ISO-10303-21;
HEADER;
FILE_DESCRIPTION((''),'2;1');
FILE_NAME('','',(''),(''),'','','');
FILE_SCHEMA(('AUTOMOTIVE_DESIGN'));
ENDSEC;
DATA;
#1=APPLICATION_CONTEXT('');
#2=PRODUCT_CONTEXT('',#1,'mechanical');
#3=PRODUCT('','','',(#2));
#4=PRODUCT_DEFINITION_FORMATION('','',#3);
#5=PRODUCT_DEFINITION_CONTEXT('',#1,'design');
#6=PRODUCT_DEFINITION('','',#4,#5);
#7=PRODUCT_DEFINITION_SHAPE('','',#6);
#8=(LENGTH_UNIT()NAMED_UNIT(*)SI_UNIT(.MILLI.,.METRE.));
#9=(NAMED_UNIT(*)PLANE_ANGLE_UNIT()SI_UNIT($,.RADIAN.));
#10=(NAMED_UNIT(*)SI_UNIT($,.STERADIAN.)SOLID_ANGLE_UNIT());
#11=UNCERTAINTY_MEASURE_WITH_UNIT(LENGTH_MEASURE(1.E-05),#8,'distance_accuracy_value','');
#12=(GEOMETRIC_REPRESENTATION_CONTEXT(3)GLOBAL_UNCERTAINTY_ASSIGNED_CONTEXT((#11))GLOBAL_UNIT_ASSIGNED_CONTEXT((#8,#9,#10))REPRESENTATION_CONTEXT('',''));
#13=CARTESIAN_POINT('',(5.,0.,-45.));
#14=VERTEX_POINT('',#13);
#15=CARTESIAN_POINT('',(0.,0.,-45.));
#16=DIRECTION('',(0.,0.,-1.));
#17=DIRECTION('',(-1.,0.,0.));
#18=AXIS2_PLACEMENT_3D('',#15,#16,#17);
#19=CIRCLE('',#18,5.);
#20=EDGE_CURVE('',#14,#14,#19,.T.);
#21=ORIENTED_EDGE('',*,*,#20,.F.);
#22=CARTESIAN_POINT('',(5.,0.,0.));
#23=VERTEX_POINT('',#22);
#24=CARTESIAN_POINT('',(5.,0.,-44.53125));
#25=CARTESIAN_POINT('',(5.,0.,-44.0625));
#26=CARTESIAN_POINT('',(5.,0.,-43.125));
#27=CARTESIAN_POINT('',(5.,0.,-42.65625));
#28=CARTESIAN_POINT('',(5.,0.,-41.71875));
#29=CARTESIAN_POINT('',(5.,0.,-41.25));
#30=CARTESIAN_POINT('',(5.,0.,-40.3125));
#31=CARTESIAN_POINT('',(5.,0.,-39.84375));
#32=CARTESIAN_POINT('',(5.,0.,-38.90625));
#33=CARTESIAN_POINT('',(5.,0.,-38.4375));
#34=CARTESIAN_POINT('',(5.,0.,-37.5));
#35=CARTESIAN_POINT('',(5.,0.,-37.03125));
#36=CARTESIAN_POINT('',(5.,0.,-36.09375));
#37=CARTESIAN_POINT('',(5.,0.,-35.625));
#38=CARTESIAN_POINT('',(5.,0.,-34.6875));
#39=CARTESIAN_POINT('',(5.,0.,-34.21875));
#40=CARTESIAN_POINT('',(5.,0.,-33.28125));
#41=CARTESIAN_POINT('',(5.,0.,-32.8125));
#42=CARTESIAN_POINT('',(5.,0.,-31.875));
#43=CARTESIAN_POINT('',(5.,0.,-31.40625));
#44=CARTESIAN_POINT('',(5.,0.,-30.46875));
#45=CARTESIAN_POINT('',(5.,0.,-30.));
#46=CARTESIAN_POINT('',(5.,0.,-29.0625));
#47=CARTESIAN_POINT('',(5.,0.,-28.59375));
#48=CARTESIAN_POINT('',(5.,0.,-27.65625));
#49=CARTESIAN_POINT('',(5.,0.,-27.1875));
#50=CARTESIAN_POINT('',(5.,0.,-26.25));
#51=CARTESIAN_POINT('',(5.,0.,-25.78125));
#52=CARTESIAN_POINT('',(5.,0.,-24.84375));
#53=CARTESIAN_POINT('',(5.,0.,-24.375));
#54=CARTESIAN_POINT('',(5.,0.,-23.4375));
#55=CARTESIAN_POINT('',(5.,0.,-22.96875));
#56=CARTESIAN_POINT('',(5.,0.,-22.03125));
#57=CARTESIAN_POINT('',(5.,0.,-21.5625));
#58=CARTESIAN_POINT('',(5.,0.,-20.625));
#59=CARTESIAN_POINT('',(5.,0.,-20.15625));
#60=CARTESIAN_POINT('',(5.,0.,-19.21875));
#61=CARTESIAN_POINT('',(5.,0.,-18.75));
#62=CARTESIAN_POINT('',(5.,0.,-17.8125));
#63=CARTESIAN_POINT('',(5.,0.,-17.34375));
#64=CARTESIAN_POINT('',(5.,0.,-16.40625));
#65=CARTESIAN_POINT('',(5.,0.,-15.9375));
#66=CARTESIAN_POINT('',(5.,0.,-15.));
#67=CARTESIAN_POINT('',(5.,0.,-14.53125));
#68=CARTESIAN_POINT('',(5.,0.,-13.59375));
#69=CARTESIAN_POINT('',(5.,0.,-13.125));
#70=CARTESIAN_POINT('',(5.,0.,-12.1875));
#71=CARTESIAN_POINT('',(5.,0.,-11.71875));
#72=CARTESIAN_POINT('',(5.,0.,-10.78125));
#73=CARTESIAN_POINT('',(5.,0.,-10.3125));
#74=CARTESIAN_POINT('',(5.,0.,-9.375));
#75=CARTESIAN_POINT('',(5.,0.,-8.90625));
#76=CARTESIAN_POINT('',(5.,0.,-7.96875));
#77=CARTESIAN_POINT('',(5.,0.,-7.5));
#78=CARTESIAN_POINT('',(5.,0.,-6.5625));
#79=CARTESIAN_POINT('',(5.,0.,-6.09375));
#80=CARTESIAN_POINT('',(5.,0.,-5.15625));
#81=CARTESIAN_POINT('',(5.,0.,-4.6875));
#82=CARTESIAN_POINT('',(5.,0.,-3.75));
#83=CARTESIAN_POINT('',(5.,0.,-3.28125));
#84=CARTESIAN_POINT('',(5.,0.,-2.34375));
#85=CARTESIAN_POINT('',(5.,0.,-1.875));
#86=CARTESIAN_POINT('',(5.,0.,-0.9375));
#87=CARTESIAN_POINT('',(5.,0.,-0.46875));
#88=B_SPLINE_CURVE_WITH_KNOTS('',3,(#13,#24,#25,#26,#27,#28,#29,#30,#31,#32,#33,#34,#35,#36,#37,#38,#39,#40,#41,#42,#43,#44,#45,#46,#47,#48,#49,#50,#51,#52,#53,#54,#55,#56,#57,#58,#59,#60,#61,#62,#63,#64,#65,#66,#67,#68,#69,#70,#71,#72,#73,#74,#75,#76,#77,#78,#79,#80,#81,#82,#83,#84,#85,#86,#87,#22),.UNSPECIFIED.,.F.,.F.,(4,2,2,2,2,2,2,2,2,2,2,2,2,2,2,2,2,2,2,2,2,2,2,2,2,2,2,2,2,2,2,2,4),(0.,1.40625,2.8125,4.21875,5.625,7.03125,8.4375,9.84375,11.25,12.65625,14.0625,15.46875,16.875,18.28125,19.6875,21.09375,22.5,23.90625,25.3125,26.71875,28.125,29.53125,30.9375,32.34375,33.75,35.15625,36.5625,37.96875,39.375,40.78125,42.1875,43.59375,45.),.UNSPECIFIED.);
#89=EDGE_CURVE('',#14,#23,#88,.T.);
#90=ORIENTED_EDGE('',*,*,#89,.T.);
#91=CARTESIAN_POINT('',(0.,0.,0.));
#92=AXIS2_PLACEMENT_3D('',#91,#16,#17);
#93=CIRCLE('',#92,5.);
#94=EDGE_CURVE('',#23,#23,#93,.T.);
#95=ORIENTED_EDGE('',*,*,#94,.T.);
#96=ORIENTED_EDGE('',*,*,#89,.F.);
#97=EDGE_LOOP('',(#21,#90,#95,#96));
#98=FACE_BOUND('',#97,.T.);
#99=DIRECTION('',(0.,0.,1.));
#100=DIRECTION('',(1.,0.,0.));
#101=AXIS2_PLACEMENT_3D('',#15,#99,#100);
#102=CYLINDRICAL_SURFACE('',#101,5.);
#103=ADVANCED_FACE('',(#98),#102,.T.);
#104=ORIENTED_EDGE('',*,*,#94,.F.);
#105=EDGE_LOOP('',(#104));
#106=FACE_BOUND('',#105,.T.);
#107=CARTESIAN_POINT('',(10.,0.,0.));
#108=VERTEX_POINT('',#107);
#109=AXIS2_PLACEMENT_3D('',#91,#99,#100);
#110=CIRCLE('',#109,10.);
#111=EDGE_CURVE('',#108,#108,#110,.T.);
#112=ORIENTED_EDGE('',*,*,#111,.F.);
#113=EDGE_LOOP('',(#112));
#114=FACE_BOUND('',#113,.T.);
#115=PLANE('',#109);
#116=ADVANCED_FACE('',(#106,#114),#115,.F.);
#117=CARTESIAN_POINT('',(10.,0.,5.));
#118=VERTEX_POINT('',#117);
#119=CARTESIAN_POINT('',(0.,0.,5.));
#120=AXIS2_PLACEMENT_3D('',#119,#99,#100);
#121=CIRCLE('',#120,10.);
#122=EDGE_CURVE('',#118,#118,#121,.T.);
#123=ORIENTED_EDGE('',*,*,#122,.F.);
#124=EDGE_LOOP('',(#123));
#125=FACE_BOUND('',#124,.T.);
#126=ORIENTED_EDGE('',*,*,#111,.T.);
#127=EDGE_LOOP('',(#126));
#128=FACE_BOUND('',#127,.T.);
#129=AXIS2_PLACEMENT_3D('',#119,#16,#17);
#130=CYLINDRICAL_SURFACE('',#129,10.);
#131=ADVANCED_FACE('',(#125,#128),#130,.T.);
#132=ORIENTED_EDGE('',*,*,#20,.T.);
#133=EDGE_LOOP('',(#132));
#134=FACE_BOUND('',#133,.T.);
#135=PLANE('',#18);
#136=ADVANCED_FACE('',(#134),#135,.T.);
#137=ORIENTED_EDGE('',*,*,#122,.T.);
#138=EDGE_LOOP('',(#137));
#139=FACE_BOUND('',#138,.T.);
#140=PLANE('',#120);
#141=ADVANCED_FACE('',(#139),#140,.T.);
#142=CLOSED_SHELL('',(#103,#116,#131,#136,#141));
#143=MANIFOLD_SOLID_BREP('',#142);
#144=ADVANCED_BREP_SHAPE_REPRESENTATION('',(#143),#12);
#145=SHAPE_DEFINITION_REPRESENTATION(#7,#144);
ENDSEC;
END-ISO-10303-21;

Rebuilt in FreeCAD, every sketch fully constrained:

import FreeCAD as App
import Part
import Sketcher

V = App.Vector
Q = App.Units.Quantity

doc = App.newDocument("Part")
params = doc.addObject("Spreadsheet::Sheet", "Params")
for row, (alias, value) in enumerate([
    ("sketch1_diameter", "20 mm"),
    ("pad1_length", "5 mm"),
    ("sketch2_diameter", "10 mm"),
    ("pad2_length", "45 mm"),
], start=1):
    params.set(f"A{row}", alias)
    params.set(f"B{row}", "=" + value)
    params.setAlias(f"B{row}", alias)

body = doc.addObject("PartDesign::Body", "Body")

sketch1 = doc.addObject("Sketcher::SketchObject", "Sketch")
body.addObject(sketch1)
sketch1.AttachmentSupport = (doc.XY_Plane, [""])
sketch1.MapMode = "FlatFace"
sketch1.addGeometry(Part.Circle(V(0, 0, 0), V(0, 0, 1), 10), False)
sketch1.addConstraint(Sketcher.Constraint("Coincident", 0, 3, -1, 1))
sketch1.addConstraint(Sketcher.Constraint("Diameter", 0, Q("20 mm")))
sketch1.setExpression("Constraints[1]", "Params.sketch1_diameter")
pad1 = doc.addObject("PartDesign::Pad", "Pad")
body.addObject(pad1)
pad1.Profile = sketch1
pad1.setExpression("Length", "Params.pad1_length")

sketch2 = doc.addObject("Sketcher::SketchObject", "Sketch001")
body.addObject(sketch2)
sketch2.AttachmentSupport = (doc.XY_Plane, [""])
sketch2.MapMode = "FlatFace"
sketch2.addGeometry(Part.Circle(V(0, 0, 0), V(0, 0, 1), 5), False)
sketch2.addConstraint(Sketcher.Constraint("Coincident", 0, 3, -1, 1))
sketch2.addConstraint(Sketcher.Constraint("Diameter", 0, Q("10 mm")))
sketch2.setExpression("Constraints[1]", "Params.sketch2_diameter")
pad2 = doc.addObject("PartDesign::Pad", "Pad001")
body.addObject(pad2)
pad2.Profile = sketch2
pad2.setExpression("Length", "Params.pad2_length")
pad2.Reversed = True

doc.recompute()
